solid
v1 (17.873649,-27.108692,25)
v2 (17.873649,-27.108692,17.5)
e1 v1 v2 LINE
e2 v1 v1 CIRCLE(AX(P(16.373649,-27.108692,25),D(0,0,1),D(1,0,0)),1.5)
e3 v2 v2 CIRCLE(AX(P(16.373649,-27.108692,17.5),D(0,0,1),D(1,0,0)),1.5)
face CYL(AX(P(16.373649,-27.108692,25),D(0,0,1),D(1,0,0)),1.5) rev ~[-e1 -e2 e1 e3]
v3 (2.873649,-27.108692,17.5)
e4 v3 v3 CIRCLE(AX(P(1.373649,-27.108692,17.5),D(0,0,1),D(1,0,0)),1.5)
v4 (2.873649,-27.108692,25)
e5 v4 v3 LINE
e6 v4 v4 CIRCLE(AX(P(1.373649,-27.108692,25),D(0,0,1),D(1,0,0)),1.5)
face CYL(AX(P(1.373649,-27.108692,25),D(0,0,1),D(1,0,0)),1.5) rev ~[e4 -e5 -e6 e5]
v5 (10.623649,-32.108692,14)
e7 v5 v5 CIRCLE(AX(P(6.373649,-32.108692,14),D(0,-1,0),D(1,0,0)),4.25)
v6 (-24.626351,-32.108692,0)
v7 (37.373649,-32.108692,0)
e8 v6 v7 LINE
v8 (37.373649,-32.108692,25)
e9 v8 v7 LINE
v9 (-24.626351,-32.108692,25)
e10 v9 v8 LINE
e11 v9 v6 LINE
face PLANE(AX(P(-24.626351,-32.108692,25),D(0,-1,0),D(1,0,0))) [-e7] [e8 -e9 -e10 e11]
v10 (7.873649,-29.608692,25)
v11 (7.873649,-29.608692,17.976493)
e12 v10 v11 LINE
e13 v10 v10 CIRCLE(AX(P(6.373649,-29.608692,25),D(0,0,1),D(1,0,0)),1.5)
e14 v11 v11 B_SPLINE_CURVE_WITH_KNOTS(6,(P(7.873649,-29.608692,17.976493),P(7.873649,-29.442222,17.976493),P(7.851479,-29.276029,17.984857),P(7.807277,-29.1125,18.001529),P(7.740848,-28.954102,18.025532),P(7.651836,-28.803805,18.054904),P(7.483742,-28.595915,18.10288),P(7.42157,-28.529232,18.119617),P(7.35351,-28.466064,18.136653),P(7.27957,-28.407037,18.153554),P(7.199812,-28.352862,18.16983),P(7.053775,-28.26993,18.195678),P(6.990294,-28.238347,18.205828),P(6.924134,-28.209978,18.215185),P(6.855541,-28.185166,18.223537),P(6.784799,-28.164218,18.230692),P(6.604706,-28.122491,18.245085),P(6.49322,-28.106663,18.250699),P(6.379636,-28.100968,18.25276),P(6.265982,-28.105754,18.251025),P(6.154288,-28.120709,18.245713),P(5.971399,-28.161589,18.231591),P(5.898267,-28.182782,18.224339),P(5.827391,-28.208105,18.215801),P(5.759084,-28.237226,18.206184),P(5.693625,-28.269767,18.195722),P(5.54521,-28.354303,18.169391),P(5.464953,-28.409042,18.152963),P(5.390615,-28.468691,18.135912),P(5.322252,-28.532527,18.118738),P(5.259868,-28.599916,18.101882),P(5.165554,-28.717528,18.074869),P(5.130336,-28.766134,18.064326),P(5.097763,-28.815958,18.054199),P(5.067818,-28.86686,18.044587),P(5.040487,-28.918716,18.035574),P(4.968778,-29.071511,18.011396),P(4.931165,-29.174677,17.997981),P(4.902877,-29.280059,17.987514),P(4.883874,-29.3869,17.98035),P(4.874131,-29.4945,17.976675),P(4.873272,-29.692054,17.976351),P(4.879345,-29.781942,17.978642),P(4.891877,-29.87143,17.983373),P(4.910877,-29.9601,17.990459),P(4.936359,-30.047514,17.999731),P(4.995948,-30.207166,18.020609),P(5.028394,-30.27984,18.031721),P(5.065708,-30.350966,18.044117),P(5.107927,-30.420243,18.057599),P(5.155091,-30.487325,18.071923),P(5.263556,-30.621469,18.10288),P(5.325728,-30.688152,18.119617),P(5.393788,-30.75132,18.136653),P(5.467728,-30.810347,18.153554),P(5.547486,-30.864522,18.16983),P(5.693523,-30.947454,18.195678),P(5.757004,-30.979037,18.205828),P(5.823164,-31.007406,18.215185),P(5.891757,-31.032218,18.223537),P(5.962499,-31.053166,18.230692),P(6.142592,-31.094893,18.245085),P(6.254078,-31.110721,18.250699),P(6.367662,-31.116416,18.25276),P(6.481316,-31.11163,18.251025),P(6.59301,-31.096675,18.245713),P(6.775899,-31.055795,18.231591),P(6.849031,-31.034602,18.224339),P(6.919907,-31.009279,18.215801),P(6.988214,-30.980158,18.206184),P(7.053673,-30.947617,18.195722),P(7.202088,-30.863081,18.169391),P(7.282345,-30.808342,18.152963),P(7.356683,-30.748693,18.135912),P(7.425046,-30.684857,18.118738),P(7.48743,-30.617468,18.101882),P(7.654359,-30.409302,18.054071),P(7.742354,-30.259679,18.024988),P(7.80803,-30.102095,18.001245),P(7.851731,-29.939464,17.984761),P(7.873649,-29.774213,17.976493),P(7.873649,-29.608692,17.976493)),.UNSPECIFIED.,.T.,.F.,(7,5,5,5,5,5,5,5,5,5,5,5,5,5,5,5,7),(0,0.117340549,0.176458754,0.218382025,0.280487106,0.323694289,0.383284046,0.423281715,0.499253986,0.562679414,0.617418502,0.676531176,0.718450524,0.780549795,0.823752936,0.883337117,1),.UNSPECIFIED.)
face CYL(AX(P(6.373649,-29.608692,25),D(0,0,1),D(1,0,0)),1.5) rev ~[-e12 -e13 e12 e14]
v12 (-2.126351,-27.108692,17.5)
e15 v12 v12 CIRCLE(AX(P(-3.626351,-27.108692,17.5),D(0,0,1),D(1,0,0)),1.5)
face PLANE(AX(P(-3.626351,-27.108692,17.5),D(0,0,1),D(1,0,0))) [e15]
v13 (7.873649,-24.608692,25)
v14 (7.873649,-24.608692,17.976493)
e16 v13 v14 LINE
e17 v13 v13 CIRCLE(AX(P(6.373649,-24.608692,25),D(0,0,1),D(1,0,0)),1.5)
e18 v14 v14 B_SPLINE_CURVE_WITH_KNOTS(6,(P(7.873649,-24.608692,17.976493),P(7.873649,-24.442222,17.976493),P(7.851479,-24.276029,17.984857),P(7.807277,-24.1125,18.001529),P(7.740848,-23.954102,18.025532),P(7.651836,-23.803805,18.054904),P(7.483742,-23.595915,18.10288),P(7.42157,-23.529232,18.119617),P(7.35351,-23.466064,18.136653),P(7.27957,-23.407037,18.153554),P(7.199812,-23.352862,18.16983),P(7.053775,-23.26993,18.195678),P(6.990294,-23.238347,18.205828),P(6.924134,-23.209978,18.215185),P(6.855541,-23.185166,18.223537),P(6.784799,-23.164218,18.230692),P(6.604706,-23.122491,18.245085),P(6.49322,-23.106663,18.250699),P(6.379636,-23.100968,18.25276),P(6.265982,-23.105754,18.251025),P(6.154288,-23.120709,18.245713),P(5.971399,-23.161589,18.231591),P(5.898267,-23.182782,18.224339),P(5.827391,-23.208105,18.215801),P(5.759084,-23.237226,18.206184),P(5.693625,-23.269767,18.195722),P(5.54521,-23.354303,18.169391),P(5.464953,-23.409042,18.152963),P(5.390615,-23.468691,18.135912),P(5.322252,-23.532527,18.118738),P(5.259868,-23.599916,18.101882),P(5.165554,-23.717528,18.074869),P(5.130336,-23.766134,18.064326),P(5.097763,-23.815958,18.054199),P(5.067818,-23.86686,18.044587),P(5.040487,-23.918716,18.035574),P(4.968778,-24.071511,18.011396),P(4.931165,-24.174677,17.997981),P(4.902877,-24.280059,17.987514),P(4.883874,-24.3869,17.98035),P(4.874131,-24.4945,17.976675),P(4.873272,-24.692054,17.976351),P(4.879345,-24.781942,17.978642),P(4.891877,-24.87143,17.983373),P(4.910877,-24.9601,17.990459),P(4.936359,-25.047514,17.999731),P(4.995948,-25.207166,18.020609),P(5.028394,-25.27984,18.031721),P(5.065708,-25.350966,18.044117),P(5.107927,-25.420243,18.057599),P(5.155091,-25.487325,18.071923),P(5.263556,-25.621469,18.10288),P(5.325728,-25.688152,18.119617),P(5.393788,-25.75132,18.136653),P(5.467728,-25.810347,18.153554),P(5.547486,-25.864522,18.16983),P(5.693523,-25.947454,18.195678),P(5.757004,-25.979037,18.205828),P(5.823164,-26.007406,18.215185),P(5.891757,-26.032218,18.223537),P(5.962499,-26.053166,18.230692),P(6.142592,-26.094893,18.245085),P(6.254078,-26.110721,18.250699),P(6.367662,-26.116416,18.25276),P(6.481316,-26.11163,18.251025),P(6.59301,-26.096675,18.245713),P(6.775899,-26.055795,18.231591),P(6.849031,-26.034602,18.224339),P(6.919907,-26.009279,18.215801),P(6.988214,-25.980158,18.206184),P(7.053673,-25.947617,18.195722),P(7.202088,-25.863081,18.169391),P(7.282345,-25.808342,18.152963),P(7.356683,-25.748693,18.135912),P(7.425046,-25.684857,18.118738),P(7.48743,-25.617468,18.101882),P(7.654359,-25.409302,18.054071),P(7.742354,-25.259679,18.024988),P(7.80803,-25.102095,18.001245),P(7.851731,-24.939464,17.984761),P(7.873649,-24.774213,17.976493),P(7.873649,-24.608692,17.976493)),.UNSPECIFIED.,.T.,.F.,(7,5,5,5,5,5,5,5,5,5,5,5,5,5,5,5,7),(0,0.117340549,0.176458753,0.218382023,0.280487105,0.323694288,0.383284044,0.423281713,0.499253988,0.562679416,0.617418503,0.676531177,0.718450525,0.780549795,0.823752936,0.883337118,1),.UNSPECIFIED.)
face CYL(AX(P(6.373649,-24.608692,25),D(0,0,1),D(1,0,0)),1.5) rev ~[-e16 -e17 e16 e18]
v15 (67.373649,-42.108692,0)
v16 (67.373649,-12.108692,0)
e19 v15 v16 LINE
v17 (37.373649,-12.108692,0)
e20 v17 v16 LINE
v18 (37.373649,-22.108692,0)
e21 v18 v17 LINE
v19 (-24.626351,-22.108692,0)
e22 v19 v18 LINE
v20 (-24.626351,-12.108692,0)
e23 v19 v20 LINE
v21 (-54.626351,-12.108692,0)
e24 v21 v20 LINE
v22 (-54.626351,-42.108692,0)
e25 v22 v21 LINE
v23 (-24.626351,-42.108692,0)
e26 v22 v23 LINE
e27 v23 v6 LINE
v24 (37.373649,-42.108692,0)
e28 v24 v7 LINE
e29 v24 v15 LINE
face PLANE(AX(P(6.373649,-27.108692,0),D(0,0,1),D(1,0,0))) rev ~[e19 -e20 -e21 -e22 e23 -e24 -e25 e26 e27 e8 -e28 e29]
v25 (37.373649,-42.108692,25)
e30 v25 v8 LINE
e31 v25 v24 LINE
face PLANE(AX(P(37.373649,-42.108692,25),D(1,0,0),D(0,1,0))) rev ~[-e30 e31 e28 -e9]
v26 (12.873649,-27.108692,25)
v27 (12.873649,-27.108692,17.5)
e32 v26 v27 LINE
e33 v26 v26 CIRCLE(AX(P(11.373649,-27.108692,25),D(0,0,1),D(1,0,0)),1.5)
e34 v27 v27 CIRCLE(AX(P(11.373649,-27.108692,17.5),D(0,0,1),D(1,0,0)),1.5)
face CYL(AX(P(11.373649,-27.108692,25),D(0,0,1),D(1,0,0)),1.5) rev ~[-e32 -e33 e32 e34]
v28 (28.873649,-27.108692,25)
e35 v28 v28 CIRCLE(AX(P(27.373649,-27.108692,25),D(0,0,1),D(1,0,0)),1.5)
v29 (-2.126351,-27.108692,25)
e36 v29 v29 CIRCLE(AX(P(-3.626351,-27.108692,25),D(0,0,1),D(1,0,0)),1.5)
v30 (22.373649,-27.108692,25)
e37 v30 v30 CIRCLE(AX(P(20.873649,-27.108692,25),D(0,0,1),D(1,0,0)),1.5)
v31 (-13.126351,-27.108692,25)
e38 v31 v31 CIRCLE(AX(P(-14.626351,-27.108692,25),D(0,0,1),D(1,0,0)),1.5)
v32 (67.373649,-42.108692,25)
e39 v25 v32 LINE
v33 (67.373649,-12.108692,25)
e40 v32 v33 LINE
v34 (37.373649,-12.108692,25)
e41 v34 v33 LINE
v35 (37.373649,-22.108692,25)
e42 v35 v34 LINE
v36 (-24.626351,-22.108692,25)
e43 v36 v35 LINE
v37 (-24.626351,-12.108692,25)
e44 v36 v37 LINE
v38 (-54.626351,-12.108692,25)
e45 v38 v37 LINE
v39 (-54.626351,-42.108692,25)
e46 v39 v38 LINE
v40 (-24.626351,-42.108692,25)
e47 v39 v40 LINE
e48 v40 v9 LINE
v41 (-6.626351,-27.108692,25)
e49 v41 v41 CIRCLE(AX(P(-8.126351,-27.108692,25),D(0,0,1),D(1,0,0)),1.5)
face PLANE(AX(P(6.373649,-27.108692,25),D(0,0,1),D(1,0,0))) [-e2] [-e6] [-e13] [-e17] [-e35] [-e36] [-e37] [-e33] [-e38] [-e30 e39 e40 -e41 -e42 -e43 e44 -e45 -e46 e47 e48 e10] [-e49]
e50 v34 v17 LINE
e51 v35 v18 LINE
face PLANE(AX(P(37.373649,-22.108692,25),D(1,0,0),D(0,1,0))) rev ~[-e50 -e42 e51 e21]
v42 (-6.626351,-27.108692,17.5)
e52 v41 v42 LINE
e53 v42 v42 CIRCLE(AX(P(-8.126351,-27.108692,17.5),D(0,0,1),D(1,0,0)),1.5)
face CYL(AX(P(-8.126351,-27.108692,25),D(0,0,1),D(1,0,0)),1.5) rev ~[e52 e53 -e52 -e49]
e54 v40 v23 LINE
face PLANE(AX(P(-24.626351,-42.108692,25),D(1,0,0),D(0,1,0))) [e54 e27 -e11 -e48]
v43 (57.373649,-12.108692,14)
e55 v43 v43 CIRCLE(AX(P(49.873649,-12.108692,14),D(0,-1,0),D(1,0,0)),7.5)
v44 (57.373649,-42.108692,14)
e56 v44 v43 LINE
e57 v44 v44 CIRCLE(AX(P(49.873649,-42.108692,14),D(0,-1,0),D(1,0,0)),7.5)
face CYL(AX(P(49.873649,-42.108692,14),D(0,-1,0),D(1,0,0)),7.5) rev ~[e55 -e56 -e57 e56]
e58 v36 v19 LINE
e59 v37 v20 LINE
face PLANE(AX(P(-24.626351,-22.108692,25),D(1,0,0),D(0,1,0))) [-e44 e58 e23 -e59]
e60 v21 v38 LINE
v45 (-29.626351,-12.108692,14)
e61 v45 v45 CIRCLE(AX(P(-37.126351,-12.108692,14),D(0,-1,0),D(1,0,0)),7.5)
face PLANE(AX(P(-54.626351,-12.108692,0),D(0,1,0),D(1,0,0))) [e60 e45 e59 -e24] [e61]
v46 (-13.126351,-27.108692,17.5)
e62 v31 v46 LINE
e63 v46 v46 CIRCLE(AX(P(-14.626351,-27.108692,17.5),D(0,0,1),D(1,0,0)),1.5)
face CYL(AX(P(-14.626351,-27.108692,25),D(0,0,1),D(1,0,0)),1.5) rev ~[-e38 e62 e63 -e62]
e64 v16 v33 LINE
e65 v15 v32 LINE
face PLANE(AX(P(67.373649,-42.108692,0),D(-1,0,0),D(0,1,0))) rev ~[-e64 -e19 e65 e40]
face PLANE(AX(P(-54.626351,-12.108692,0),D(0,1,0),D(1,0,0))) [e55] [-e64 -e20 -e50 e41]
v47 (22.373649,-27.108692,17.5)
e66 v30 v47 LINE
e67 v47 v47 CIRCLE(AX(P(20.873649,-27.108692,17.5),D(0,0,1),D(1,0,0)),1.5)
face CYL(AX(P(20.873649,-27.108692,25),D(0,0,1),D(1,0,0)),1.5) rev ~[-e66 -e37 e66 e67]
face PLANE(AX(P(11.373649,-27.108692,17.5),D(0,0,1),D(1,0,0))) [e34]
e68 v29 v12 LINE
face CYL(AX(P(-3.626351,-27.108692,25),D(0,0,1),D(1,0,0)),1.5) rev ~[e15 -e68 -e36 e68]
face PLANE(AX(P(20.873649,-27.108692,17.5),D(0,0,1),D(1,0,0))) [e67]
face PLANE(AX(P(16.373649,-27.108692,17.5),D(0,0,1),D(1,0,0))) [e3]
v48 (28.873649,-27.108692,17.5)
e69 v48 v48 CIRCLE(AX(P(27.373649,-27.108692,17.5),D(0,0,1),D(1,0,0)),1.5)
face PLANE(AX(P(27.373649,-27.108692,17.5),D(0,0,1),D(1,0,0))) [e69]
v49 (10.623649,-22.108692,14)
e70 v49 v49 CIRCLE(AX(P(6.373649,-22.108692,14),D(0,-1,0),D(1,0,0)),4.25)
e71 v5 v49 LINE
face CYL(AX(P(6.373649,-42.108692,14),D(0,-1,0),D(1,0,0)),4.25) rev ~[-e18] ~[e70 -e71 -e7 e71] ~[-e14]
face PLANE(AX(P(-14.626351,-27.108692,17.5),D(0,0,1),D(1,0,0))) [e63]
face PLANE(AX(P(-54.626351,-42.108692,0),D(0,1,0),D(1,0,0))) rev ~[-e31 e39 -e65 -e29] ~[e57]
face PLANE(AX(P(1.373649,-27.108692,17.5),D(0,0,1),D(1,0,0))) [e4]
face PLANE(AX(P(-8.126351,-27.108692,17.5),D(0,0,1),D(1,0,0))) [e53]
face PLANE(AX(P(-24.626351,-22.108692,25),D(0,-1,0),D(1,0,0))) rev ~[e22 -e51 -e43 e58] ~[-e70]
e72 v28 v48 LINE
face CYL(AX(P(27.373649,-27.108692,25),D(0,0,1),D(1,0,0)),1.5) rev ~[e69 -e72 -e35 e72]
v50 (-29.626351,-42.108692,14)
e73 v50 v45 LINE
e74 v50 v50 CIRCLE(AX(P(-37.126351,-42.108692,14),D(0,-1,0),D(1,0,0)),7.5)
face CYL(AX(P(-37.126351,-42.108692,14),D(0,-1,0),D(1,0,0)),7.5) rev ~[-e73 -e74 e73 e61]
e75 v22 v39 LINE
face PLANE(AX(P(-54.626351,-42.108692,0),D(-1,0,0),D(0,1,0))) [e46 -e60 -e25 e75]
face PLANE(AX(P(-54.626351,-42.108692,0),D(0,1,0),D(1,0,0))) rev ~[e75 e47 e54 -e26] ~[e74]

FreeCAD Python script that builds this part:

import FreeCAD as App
import Part
import Sketcher

V = App.Vector
Q = App.Units.Quantity

doc = App.newDocument("Part")
body = doc.addObject("PartDesign::Body", "Body")

# Sketch on XY plane
sketch1 = body.newObject("Sketcher::SketchObject", "Sketch")
sketch1.AttachmentSupport = (doc.getObject("XY_Plane"), [""])
sketch1.MapMode = "FlatFace"
sketch1.addGeometry(Part.LineSegment(V(-55, -12, 0), V(-55, -42, 0)), False)
sketch1.addGeometry(Part.LineSegment(V(-55, -42, 0), V(67, -42, 0)), False)
sketch1.addGeometry(Part.LineSegment(V(67, -42, 0), V(67, -12, 0)), False)
sketch1.addGeometry(Part.LineSegment(V(67, -12, 0), V(-55, -12, 0)), False)
sketch1.addConstraint(Sketcher.Constraint("Coincident", 0, 2, 1, 1))
sketch1.addConstraint(Sketcher.Constraint("Coincident", 1, 2, 2, 1))
sketch1.addConstraint(Sketcher.Constraint("Coincident", 2, 2, 3, 1))
sketch1.addConstraint(Sketcher.Constraint("Coincident", 3, 2, 0, 1))
sketch1.addConstraint(Sketcher.Constraint("Vertical", 0))
sketch1.addConstraint(Sketcher.Constraint("Horizontal", 1))
sketch1.addConstraint(Sketcher.Constraint("Vertical", 2))
sketch1.addConstraint(Sketcher.Constraint("Horizontal", 3))
sketch1.addConstraint(Sketcher.Constraint("DistanceX", 1, 1, 1, 2, Q("122 mm")))
sketch1.addConstraint(Sketcher.Constraint("DistanceY", 0, 2, 0, 1, Q("30 mm")))
sketch1.addConstraint(Sketcher.Constraint("DistanceX", 0, 2, -1, 1, Q("54.626351 mm")))
sketch1.addConstraint(Sketcher.Constraint("DistanceY", 0, 2, -1, 1, Q("42.108692 mm")))
pad1 = body.newObject("PartDesign::Pad", "Pad")
pad1.Profile = sketch1
pad1.Length = 25

# Sketch on XZ plane
sketch2 = body.newObject("Sketcher::SketchObject", "Sketch001")
sketch2.AttachmentSupport = (doc.getObject("XZ_Plane"), [""])
sketch2.MapMode = "FlatFace"
sketch2.AttachmentOffset = App.Placement(V(0, 0, 42.108692), App.Rotation())
sketch2.addGeometry(Part.Circle(V(-37.1, 14, 0), V(0, 0, 1), 7.5), False)
sketch2.addGeometry(Part.Circle(V(49.9, 14, 0), V(0, 0, 1), 7.5), False)
sketch2.addGeometry(Part.Circle(V(6.4, 14, 0), V(0, 0, 1), 4.2), False)
sketch2.addConstraint(Sketcher.Constraint("Equal", 0, 1))
sketch2.addConstraint(Sketcher.Constraint("Horizontal", 0, 3, 1, 3))
sketch2.addConstraint(Sketcher.Constraint("Horizontal", 1, 3, 2, 3))
sketch2.addConstraint(Sketcher.Constraint("Diameter", 0, Q("15 mm")))
sketch2.addConstraint(Sketcher.Constraint("Diameter", 2, Q("8.5 mm")))
sketch2.addConstraint(Sketcher.Constraint("DistanceY", -1, 1, 0, 3, Q("14 mm")))
sketch2.addConstraint(Sketcher.Constraint("DistanceX", 0, 3, 1, 3, Q("87 mm")))
sketch2.addConstraint(Sketcher.Constraint("DistanceX", 0, 3, 2, 3, Q("43.5 mm")))
sketch2.addConstraint(Sketcher.Constraint("DistanceX", 0, 3, -1, 1, Q("37.126351 mm")))
pocket1 = body.newObject("PartDesign::Pocket", "Pocket")
pocket1.Profile = sketch2
pocket1.Type = "ThroughAll"

# Sketch on XY plane
sketch3 = body.newObject("Sketcher::SketchObject", "Sketch002")
sketch3.AttachmentSupport = (doc.getObject("XY_Plane"), [""])
sketch3.MapMode = "FlatFace"
sketch3.AttachmentOffset = App.Placement(V(0, 0, 25), App.Rotation())
sketch3.addGeometry(Part.LineSegment(V(-25, -12, 0), V(-25, -22, 0)), False)
sketch3.addGeometry(Part.LineSegment(V(-25, -22, 0), V(37, -22, 0)), False)
sketch3.addGeometry(Part.LineSegment(V(37, -22, 0), V(37, -12, 0)), False)
sketch3.addGeometry(Part.LineSegment(V(37, -12, 0), V(-25, -12, 0)), False)
sketch3.addGeometry(Part.LineSegment(V(-25, -32, 0), V(-25, -42, 0)), False)
sketch3.addGeometry(Part.LineSegment(V(-25, -42, 0), V(37, -42, 0)), False)
sketch3.addGeometry(Part.LineSegment(V(37, -42, 0), V(37, -32, 0)), False)
sketch3.addGeometry(Part.LineSegment(V(37, -32, 0), V(-25, -32, 0)), False)
sketch3.addConstraint(Sketcher.Constraint("Coincident", 0, 2, 1, 1))
sketch3.addConstraint(Sketcher.Constraint("Coincident", 1, 2, 2, 1))
sketch3.addConstraint(Sketcher.Constraint("Coincident", 2, 2, 3, 1))
sketch3.addConstraint(Sketcher.Constraint("Coincident", 3, 2, 0, 1))
sketch3.addConstraint(Sketcher.Constraint("Coincident", 4, 2, 5, 1))
sketch3.addConstraint(Sketcher.Constraint("Coincident", 5, 2, 6, 1))
sketch3.addConstraint(Sketcher.Constraint("Coincident", 6, 2, 7, 1))
sketch3.addConstraint(Sketcher.Constraint("Coincident", 7, 2, 4, 1))
sketch3.addConstraint(Sketcher.Constraint("Vertical", 0))
sketch3.addConstraint(Sketcher.Constraint("Horizontal", 1))
sketch3.addConstraint(Sketcher.Constraint("Vertical", 2))
sketch3.addConstraint(Sketcher.Constraint("Horizontal", 3))
sketch3.addConstraint(Sketcher.Constraint("Vertical", 4))
sketch3.addConstraint(Sketcher.Constraint("Horizontal", 5))
sketch3.addConstraint(Sketcher.Constraint("Vertical", 6))
sketch3.addConstraint(Sketcher.Constraint("Horizontal", 7))
sketch3.addConstraint(Sketcher.Constraint("Vertical", 3, 2, 4, 2))
sketch3.addConstraint(Sketcher.Constraint("Vertical", 2, 2, 5, 2))
sketch3.addConstraint(Sketcher.Constraint("Equal", 2, 4))
sketch3.addConstraint(Sketcher.Constraint("DistanceX", 1, 1, 1, 2, Q("62 mm")))
sketch3.addConstraint(Sketcher.Constraint("DistanceY", 0, 2, 0, 1, Q("10 mm")))
sketch3.addConstraint(Sketcher.Constraint("DistanceY", 4, 2, 0, 2, Q("20 mm")))
sketch3.addConstraint(Sketcher.Constraint("DistanceX", 0, 2, -1, 1, Q("24.626351 mm")))
sketch3.addConstraint(Sketcher.Constraint("DistanceY", 4, 2, -1, 1, Q("42.108692 mm")))
pocket2 = body.newObject("PartDesign::Pocket", "Pocket001")
pocket2.Profile = sketch3
pocket2.Length = 30

# Sketch on XY plane
sketch4 = body.newObject("Sketcher::SketchObject", "Sketch003")
sketch4.AttachmentSupport = (doc.getObject("XY_Plane"), [""])
sketch4.MapMode = "FlatFace"
sketch4.AttachmentOffset = App.Placement(V(0, 0, 25), App.Rotation())
sketch4.addGeometry(Part.Circle(V(6.4, -29.6, 0), V(0, 0, 1), 1.5), False)
sketch4.addGeometry(Part.Circle(V(6.4, -24.6, 0), V(0, 0, 1), 1.5), False)
sketch4.addGeometry(Part.Circle(V(11.4, -27.1, 0), V(0, 0, 1), 1.5), False)
sketch4.addGeometry(Part.Circle(V(16.4, -27.1, 0), V(0, 0, 1), 1.5), False)
sketch4.addGeometry(Part.Circle(V(20.9, -27.1, 0), V(0, 0, 1), 1.5), False)
sketch4.addGeometry(Part.Circle(V(27.4, -27.1, 0), V(0, 0, 1), 1.5), False)
sketch4.addGeometry(Part.Circle(V(1.4, -27.1, 0), V(0, 0, 1), 1.5), False)
sketch4.addGeometry(Part.Circle(V(-3.6, -27.1, 0), V(0, 0, 1), 1.5), False)
sketch4.addGeometry(Part.Circle(V(-8.1, -27.1, 0), V(0, 0, 1), 1.5), False)
sketch4.addGeometry(Part.Circle(V(-14.6, -27.1, 0), V(0, 0, 1), 1.5), False)
sketch4.addConstraint(Sketcher.Constraint("Equal", 0, 1))
sketch4.addConstraint(Sketcher.Constraint("Equal", 1, 2))
sketch4.addConstraint(Sketcher.Constraint("Equal", 2, 3))
sketch4.addConstraint(Sketcher.Constraint("Equal", 3, 4))
sketch4.addConstraint(Sketcher.Constraint("Equal", 4, 5))
sketch4.addConstraint(Sketcher.Constraint("Equal", 5, 6))
sketch4.addConstraint(Sketcher.Constraint("Equal", 6, 7))
sketch4.addConstraint(Sketcher.Constraint("Equal", 7, 8))
sketch4.addConstraint(Sketcher.Constraint("Equal", 8, 9))
sketch4.addConstraint(Sketcher.Constraint("Horizontal", 2, 3, 3, 3))
sketch4.addConstraint(Sketcher.Constraint("Horizontal", 3, 3, 4, 3))
sketch4.addConstraint(Sketcher.Constraint("Horizontal", 4, 3, 5, 3))
sketch4.addConstraint(Sketcher.Constraint("Horizontal", 5, 3, 6, 3))
sketch4.addConstraint(Sketcher.Constraint("Horizontal", 6, 3, 7, 3))
sketch4.addConstraint(Sketcher.Constraint("Horizontal", 7, 3, 8, 3))
sketch4.addConstraint(Sketcher.Constraint("Horizontal", 8, 3, 9, 3))
sketch4.addConstraint(Sketcher.Constraint("Vertical", 0, 3, 1, 3))
sketch4.addConstraint(Sketcher.Constraint("Diameter", 0, Q("3 mm")))
sketch4.addConstraint(Sketcher.Constraint("DistanceY", 0, 3, 1, 3, Q("5 mm")))
sketch4.addConstraint(Sketcher.Constraint("DistanceX", 0, 3, 2, 3, Q("5 mm")))
sketch4.addConstraint(Sketcher.Constraint("DistanceX", 2, 3, 3, 3, Q("5 mm")))
sketch4.addConstraint(Sketcher.Constraint("DistanceX", 3, 3, 5, 3, Q("11 mm")))
sketch4.addConstraint(Sketcher.Constraint("DistanceX", 6, 3, 0, 3, Q("5 mm")))
sketch4.addConstraint(Sketcher.Constraint("DistanceX", 7, 3, 6, 3, Q("5 mm")))
sketch4.addConstraint(Sketcher.Constraint("DistanceX", 9, 3, 7, 3, Q("11 mm")))
sketch4.addConstraint(Sketcher.Constraint("DistanceY", 0, 3, 2, 3, Q("2.5 mm")))
sketch4.addConstraint(Sketcher.Constraint("DistanceX", 3, 3, 4, 3, Q("4.5 mm")))
sketch4.addConstraint(Sketcher.Constraint("DistanceX", 8, 3, 7, 3, Q("4.5 mm")))
sketch4.addConstraint(Sketcher.Constraint("DistanceX", -1, 1, 0, 3, Q("6.373649 mm")))
sketch4.addConstraint(Sketcher.Constraint("DistanceY", 0, 3, -1, 1, Q("29.608692 mm")))
pocket3 = body.newObject("PartDesign::Pocket", "Pocket002")
pocket3.Profile = sketch4
pocket3.Length = 7.5

doc.recompute()
